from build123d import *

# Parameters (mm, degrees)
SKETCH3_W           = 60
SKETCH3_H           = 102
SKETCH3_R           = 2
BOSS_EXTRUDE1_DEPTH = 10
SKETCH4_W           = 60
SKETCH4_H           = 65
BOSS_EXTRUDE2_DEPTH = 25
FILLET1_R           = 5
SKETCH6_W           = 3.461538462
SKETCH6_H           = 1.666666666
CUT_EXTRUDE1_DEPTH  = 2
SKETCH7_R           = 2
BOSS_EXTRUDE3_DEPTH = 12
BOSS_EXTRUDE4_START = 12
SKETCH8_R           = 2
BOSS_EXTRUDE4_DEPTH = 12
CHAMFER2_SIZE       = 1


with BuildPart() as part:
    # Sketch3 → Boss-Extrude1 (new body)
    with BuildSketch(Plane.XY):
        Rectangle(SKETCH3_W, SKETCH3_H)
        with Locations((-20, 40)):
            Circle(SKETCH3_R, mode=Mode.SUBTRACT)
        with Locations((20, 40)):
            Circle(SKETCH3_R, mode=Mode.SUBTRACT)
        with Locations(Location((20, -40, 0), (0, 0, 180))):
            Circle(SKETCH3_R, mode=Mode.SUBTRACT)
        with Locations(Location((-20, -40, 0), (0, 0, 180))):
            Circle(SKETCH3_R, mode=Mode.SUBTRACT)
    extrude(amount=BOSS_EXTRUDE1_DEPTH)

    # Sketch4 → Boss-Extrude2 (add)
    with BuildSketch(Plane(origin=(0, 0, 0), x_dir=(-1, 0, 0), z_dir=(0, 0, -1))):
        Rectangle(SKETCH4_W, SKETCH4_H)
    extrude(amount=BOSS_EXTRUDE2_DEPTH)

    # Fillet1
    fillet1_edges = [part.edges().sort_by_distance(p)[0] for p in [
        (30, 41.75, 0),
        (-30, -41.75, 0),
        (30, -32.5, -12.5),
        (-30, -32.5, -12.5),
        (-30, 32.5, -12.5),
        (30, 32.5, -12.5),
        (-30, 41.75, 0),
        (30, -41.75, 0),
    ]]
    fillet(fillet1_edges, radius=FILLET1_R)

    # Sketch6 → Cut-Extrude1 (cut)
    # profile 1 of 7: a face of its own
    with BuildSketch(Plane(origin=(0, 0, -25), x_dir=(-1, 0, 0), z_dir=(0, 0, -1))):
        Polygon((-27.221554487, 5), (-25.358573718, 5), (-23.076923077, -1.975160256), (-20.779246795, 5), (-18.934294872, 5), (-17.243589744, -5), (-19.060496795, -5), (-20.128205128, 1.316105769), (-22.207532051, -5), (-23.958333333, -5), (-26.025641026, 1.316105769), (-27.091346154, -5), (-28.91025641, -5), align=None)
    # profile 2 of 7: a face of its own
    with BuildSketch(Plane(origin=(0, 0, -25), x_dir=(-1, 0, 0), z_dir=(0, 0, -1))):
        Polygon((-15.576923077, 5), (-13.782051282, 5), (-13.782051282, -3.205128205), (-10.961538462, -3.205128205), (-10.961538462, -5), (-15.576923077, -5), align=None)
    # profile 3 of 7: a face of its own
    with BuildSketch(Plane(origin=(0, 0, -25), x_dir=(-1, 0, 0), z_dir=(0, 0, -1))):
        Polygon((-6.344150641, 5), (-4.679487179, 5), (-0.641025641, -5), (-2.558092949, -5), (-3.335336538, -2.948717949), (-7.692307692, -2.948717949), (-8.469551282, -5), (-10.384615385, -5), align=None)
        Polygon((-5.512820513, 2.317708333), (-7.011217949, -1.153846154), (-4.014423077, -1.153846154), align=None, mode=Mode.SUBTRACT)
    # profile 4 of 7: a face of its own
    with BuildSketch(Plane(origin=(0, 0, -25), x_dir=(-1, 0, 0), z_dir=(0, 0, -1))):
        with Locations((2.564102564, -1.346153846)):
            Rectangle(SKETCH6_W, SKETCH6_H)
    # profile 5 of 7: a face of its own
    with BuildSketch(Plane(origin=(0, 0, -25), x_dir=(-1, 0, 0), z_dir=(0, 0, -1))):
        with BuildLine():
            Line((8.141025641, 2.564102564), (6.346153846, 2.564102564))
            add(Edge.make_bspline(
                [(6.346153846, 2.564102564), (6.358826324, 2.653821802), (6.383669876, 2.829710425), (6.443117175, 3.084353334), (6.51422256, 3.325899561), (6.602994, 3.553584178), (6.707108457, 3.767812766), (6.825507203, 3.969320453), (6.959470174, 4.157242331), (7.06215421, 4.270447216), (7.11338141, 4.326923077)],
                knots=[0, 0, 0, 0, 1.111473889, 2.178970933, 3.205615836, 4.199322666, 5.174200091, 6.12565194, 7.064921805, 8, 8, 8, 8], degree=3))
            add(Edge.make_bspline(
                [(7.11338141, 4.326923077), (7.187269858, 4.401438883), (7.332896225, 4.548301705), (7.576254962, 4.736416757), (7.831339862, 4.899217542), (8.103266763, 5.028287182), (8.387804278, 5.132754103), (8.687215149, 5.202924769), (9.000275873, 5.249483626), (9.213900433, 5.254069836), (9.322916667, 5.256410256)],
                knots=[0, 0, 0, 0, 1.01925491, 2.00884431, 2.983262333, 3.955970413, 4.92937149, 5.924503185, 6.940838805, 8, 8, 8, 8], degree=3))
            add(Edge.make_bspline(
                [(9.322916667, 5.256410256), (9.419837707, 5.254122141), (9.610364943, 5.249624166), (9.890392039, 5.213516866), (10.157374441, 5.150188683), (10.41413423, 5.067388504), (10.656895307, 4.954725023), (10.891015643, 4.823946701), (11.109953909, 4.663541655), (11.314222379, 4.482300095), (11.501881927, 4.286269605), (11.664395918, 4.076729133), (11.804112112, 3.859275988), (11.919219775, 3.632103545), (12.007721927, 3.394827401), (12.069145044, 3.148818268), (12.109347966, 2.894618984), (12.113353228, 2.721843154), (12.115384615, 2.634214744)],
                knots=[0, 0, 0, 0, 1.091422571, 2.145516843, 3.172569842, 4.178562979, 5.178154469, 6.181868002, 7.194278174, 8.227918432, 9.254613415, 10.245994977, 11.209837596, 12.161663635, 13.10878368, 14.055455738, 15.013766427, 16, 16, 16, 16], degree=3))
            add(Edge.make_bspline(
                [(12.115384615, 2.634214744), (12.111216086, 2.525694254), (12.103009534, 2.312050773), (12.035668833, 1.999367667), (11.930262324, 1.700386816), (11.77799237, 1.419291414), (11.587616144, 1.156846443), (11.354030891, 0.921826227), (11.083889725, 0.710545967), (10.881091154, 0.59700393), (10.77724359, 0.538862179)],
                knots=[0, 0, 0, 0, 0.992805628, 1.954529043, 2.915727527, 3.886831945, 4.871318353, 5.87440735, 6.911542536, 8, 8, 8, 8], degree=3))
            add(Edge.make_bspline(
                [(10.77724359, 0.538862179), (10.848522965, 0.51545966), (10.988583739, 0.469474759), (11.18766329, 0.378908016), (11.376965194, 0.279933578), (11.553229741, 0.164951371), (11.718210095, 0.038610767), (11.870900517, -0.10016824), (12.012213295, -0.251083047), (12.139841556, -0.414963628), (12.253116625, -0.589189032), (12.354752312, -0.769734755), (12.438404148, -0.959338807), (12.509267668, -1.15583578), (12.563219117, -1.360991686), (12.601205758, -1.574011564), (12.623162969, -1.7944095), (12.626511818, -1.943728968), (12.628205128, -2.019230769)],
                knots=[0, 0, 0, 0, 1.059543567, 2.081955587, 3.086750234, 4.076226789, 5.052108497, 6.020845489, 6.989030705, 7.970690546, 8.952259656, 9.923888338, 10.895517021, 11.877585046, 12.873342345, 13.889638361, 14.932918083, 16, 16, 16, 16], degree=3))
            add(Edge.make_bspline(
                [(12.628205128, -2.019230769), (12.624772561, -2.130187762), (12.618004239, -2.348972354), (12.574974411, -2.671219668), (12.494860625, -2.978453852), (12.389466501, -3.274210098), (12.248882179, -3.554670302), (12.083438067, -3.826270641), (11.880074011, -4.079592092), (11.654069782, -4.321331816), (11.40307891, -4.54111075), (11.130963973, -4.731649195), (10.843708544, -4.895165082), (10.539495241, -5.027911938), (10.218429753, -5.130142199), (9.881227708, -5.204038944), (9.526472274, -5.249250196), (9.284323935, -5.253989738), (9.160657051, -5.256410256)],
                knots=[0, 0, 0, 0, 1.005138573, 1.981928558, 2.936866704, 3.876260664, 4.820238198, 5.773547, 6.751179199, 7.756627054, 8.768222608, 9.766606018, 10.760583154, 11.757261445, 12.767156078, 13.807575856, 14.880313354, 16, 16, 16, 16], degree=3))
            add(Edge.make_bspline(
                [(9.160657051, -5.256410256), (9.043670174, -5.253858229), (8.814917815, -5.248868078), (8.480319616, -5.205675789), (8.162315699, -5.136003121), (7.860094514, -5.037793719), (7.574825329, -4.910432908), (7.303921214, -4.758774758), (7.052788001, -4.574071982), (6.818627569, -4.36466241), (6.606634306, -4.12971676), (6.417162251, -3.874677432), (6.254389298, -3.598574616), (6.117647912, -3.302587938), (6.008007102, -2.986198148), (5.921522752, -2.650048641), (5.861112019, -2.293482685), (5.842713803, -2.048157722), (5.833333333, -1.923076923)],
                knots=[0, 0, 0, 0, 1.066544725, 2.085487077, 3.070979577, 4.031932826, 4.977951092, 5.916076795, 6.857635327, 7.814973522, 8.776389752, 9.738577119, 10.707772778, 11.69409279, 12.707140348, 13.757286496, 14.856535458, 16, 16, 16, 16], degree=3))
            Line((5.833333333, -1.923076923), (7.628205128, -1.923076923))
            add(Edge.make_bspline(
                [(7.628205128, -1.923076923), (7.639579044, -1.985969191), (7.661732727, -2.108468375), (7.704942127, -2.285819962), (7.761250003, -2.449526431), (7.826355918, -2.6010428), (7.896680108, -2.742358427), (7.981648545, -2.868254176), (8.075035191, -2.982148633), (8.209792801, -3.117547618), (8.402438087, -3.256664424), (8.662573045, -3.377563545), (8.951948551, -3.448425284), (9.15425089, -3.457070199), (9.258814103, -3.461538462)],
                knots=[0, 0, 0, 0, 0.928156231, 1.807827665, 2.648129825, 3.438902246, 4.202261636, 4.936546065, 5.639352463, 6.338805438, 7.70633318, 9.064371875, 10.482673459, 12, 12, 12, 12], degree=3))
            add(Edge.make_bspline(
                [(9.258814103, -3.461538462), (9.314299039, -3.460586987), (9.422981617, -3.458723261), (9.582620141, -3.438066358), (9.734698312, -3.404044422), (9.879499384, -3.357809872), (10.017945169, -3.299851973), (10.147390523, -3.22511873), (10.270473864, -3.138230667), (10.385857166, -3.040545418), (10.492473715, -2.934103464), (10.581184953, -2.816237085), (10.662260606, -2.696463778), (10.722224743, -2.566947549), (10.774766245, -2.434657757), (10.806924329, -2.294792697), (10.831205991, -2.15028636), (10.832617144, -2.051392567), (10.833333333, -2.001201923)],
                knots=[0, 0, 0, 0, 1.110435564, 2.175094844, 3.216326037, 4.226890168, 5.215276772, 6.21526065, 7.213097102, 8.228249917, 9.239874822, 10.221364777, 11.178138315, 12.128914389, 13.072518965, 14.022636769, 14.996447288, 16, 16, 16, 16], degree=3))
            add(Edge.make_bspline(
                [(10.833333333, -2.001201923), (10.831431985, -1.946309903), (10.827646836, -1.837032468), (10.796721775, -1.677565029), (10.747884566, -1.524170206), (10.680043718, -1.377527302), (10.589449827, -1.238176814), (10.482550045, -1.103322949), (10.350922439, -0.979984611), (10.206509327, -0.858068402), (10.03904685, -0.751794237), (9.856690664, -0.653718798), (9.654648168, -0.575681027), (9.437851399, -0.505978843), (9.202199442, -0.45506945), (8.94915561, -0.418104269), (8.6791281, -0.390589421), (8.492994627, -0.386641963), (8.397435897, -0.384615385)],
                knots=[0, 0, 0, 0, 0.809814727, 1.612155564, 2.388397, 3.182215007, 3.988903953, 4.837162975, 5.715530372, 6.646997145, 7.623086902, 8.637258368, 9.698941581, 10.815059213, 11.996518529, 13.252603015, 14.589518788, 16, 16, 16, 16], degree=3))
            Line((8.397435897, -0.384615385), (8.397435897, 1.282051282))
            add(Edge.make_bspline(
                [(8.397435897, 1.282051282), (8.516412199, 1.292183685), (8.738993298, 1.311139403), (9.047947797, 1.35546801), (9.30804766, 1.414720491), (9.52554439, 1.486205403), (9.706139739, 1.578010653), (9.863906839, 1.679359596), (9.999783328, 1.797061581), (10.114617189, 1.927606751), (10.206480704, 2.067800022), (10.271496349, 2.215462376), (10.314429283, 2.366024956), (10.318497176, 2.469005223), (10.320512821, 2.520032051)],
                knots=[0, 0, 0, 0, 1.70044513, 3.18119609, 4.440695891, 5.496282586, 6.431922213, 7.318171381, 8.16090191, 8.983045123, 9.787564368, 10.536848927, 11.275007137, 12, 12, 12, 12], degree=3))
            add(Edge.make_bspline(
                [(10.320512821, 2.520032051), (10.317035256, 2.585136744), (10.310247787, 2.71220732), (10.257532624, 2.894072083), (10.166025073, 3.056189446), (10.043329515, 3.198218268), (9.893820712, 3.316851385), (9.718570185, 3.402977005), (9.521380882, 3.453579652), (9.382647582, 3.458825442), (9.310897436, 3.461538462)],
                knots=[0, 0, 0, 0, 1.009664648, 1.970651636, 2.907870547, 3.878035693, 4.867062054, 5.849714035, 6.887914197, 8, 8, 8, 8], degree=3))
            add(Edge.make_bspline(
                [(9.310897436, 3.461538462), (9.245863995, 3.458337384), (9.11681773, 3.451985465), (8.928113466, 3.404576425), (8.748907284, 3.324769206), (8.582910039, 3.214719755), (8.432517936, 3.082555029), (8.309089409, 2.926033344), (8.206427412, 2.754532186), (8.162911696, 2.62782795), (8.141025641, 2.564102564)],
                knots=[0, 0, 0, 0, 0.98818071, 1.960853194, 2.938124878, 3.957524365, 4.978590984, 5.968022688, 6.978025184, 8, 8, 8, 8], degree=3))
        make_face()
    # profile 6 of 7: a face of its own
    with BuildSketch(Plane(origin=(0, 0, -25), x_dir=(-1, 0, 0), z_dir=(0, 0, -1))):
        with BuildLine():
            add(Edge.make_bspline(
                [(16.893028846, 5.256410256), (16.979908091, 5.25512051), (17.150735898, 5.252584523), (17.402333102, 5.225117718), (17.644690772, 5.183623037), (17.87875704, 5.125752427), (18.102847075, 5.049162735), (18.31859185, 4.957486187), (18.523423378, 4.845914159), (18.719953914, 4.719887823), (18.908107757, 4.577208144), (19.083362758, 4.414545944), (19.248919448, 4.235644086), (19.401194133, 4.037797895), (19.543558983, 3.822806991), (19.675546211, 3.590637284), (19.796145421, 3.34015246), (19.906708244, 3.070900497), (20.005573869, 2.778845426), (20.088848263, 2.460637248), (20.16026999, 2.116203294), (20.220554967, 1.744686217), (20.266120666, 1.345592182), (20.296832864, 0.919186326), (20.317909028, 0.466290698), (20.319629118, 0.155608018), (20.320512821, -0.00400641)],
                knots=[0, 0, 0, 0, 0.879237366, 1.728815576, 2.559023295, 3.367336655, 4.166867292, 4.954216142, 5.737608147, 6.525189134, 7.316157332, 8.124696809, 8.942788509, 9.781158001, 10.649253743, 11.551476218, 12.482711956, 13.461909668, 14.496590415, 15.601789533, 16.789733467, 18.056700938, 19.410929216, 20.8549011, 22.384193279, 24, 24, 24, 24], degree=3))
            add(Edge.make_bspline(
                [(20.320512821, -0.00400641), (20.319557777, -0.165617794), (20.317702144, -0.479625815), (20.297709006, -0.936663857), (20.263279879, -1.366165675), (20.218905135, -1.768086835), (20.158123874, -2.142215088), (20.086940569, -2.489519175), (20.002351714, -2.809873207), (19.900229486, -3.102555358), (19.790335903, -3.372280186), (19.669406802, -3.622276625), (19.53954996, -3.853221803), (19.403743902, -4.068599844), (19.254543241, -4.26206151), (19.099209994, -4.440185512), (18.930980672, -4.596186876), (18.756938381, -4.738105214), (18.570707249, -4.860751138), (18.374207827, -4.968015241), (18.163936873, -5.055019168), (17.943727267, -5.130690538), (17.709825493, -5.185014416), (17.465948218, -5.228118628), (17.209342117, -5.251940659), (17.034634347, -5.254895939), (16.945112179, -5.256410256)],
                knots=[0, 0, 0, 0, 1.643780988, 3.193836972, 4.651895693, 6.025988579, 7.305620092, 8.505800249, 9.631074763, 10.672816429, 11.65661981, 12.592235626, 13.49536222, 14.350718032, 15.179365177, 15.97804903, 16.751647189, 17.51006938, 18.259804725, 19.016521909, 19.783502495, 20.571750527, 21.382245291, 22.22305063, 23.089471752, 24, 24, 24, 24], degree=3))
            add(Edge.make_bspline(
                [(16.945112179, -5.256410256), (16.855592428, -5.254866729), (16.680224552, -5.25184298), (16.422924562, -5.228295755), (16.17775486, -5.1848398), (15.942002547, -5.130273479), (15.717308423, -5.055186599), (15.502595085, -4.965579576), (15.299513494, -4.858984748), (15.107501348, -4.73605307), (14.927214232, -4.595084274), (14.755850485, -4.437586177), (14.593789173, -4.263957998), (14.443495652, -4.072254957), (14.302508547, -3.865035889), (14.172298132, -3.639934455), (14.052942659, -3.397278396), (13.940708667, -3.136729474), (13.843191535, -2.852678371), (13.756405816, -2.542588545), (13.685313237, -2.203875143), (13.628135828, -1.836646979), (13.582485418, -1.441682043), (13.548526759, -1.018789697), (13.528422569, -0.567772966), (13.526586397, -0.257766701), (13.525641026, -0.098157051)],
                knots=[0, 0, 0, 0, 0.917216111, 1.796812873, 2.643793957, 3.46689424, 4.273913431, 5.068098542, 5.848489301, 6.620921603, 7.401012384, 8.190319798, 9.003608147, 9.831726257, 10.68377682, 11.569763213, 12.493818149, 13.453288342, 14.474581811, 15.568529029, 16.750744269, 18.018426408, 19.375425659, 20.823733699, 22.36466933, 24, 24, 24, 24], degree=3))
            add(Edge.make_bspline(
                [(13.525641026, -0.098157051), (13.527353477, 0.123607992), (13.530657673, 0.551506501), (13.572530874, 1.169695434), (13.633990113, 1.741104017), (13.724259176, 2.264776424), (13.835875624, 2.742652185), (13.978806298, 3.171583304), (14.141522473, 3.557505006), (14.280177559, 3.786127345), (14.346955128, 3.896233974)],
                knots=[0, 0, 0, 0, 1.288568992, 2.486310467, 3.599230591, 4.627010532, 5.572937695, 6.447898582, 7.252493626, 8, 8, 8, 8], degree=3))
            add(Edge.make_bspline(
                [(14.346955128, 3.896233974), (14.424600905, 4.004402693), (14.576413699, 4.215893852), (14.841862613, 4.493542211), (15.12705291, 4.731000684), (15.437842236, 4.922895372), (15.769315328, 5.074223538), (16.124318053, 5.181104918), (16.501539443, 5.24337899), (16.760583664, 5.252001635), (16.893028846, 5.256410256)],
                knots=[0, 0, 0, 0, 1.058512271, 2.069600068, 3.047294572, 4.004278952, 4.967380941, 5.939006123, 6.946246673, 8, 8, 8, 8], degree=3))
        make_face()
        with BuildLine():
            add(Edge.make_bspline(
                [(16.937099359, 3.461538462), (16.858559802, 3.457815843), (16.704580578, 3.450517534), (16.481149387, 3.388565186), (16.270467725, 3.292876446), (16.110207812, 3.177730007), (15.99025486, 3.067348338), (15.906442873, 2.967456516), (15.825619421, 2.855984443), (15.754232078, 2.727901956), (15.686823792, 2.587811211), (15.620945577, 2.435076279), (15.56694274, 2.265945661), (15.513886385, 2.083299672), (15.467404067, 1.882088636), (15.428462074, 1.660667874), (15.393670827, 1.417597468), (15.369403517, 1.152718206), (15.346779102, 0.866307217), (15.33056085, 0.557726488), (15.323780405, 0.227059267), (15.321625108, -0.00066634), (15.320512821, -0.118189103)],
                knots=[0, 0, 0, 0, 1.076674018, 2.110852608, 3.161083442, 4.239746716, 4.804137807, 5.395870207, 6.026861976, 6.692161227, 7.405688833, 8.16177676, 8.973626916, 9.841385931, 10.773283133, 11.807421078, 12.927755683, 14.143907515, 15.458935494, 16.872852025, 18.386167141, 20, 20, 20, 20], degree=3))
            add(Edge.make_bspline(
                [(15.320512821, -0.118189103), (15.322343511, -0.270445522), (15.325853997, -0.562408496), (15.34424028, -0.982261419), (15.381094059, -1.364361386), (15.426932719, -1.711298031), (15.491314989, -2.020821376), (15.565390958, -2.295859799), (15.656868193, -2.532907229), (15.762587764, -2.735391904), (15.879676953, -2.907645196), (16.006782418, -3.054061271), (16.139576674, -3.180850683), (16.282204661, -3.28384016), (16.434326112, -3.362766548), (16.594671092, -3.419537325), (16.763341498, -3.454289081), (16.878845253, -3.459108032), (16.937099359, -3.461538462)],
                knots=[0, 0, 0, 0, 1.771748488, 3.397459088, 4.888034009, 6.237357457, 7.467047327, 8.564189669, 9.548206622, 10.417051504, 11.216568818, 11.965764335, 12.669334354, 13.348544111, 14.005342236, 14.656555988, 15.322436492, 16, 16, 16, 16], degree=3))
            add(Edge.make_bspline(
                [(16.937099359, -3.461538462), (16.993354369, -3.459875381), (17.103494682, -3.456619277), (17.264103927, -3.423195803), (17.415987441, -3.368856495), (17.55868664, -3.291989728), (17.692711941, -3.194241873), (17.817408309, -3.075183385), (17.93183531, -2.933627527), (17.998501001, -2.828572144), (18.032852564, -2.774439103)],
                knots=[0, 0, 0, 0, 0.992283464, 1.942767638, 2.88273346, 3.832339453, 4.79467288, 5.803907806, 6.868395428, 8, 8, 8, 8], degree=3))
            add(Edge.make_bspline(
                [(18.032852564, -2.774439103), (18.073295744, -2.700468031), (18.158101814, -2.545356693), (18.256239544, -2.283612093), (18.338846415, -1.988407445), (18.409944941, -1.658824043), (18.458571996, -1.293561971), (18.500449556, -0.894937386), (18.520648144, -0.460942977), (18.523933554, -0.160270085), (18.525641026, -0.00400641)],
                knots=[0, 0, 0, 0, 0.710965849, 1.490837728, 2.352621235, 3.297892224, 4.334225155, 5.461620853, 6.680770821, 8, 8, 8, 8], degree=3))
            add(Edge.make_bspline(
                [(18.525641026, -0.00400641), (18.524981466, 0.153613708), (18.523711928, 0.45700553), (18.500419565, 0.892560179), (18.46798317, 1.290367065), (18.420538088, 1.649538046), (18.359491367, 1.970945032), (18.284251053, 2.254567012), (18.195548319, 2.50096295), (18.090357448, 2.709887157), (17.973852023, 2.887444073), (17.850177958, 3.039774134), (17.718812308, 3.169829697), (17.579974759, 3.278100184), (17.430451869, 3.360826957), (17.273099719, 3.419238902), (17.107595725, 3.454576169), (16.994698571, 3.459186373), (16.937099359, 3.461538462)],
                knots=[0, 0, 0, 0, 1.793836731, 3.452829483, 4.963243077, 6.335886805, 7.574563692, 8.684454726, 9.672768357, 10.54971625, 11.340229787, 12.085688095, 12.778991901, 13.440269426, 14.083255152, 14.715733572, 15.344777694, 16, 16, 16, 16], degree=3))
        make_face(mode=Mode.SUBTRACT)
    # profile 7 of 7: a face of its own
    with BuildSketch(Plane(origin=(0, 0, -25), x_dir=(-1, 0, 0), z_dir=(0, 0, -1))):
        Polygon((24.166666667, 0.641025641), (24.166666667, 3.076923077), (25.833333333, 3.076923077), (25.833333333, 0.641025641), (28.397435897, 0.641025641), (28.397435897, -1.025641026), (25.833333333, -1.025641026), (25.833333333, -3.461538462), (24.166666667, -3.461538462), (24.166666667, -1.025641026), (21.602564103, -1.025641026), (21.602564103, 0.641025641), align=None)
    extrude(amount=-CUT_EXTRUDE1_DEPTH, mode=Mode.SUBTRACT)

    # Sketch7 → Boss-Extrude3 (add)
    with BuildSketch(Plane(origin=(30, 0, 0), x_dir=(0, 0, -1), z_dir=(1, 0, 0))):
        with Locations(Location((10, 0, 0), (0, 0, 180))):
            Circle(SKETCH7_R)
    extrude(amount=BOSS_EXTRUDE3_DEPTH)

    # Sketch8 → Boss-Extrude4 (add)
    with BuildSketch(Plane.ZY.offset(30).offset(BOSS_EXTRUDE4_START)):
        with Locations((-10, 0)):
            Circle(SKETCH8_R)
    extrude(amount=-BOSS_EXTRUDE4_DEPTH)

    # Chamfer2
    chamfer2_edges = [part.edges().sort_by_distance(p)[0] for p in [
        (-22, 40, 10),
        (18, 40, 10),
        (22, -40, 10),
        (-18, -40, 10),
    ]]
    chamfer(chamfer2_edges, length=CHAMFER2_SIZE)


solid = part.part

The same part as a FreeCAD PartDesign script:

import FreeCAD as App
import Part
import Sketcher
from FreeCAD import Vector


def edges_at(feature, points):
    """Names of the edges that pass closest to the given points."""
    edges = feature.Shape.Edges
    near = lambda p: min(range(len(edges)), key=lambda i: edges[i].distToShape(Part.Vertex(*p))[0])
    return sorted({f"Edge{near(p) + 1}" for p in points})


def add_polygon(sketch, points):
    """Adds a closed chain of lines whose ends are joined by coincident constraints."""
    first, n = sketch.GeometryCount, len(points)
    for a, b in zip(points, points[1:] + points[:1]):
        sketch.addGeometry(Part.LineSegment(App.Vector(*a, 0), App.Vector(*b, 0)), False)
    for i in range(n):
        sketch.addConstraint(Sketcher.Constraint("Coincident", first + i, 2, first + (i + 1) % n, 1))

doc = App.newDocument("Part")
params = doc.addObject("Spreadsheet::Sheet", "Params")
for row, (alias, value) in enumerate([
    ("sketch1_diameter", "4 mm"),
    ("sketch1_width", "60 mm"),
    ("sketch1_height", "102 mm"),
    ("pad1_length", "10 mm"),
    ("sketch2_width", "60 mm"),
    ("sketch2_height", "65 mm"),
    ("pad2_length", "25 mm"),
    ("fillet_radius", "5 mm"),
    ("sketch3_height", "10 mm"),
    ("pocket1_length", "2 mm"),
    ("sketch4_diameter", "4 mm"),
    ("pad3_length", "12 mm"),
    ("sketch5_diameter", "4 mm"),
    ("pad4_length", "12 mm"),
    ("chamfer_size", "1 mm"),
], start=1):
    params.set(f"A{row}", alias)
    params.set(f"B{row}", "=" + value)
    params.setAlias(f"B{row}", alias)

body = doc.addObject("PartDesign::Body", "Body")

# Sketch on XY plane
sketch1 = body.newObject("Sketcher::SketchObject", "Sketch")
sketch1.AttachmentSupport = (doc.getObject("XY_Plane"), [""])
sketch1.MapMode = "FlatFace"
add_polygon(sketch1, [(-30, 51), (-30, -51), (30, -51), (30, 51)])  # lines 0-3
sketch1.addGeometry(Part.Circle(Vector(-20, -40, 0), Vector(0, 0, 1), 2), False)  # 4
sketch1.addGeometry(Part.Circle(Vector(20, -40, 0), Vector(0, 0, 1), 2), False)  # 5
sketch1.addGeometry(Part.Circle(Vector(-20, 40, 0), Vector(0, 0, 1), 2), False)  # 6
sketch1.addGeometry(Part.Circle(Vector(20, 40, 0), Vector(0, 0, 1), 2), False)  # 7
sketch1.addConstraint([
    Sketcher.Constraint("Vertical", 0),
    Sketcher.Constraint("Horizontal", 1),
    Sketcher.Constraint("Vertical", 2),
    Sketcher.Constraint("Horizontal", 3),
    Sketcher.Constraint("Equal", 4, 5),
    Sketcher.Constraint("Equal", 5, 6),
    Sketcher.Constraint("Equal", 6, 7),
    Sketcher.Constraint("Symmetric", 5, 3, 6, 3, -1, 1),
    Sketcher.Constraint("Symmetric", 4, 3, 7, 3, -1, 1),
    Sketcher.Constraint("Symmetric", 0, 2, 2, 2, -1, 1),
    Sketcher.Constraint("Symmetric", 4, 3, 5, 3, -2),
    Sketcher.Constraint("Diameter", 4, 4.0),
    Sketcher.Constraint("DistanceX", 1, 1, 1, 2, 60.0),
    Sketcher.Constraint("DistanceY", 0, 2, 0, 1, 102.0),
    Sketcher.Constraint("DistanceX", 4, 3, -1, 1, 20.0),
    Sketcher.Constraint("DistanceY", 4, 3, -1, 1, 40.0),
])
sketch1.setExpression("Constraints[15]", "Params.sketch1_diameter")
sketch1.setExpression("Constraints[16]", "Params.sketch1_width")
sketch1.setExpression("Constraints[17]", "Params.sketch1_height")
pad1 = body.newObject("PartDesign::Pad", "Pad")
pad1.Profile = sketch1
pad1.setExpression("Length", "Params.pad1_length")

# Sketch on XY plane
sketch2 = body.newObject("Sketcher::SketchObject", "Sketch001")
sketch2.AttachmentSupport = (doc.getObject("XY_Plane"), [""])
sketch2.MapMode = "FlatFace"
add_polygon(sketch2, [(30, 32.5), (30, -32.5), (-30, -32.5), (-30, 32.5)])  # lines 0-3
sketch2.addConstraint([
    Sketcher.Constraint("Vertical", 0),
    Sketcher.Constraint("Horizontal", 1),
    Sketcher.Constraint("Vertical", 2),
    Sketcher.Constraint("Horizontal", 3),
    Sketcher.Constraint("Symmetric", 0, 2, 2, 2, -1, 1),
    Sketcher.Constraint("DistanceX", 1, 2, 1, 1, 60.0),
    Sketcher.Constraint("DistanceY", 0, 2, 0, 1, 65.0),
])
sketch2.setExpression("Constraints[9]", "Params.sketch2_width")
sketch2.setExpression("Constraints[10]", "Params.sketch2_height")
pad2 = body.newObject("PartDesign::Pad", "Pad001")
pad2.Profile = sketch2
pad2.setExpression("Length", "Params.pad2_length")
pad2.Reversed = True
doc.recompute()

fillet = body.newObject("PartDesign::Fillet", "Fillet")
fillet.Base = (pad2, edges_at(pad2, [
    (30, 41.75, 0),
    (-30, -41.75, 0),
    (30, -32.5, -12.5),
    (-30, -32.5, -12.5),
    (-30, 32.5, -12.5),
    (30, 32.5, -12.5),
    (-30, 41.75, 0),
    (30, -41.75, 0),
]))
fillet.setExpression("Radius", "Params.fillet_radius")

# Sketch on XY plane
sketch3 = body.newObject("Sketcher::SketchObject", "Sketch002")
sketch3.AttachmentSupport = (doc.getObject("XY_Plane"), [""])
sketch3.MapMode = "FlatFace"
sketch3.AttachmentOffset = App.Placement(Vector(0, 0, -25), App.Rotation())
add_polygon(sketch3, [(25.358574, 5), (27.221554, 5), (28.910256, -5), (27.091346, -5), (26.025641, 1.316106), (23.958333, -5), (22.207532, -5), (20.128205, 1.316106), (19.060497, -5), (17.24359, -5), (18.934295, 5), (20.779247, 5), (23.076923, -1.97516)])  # lines 0-12
add_polygon(sketch3, [(13.782051, 5), (15.576923, 5), (15.576923, -5), (10.961538, -5), (10.961538, -3.205128), (13.782051, -3.205128)])  # lines 13-18
add_polygon(sketch3, [(4.679487, 5), (6.344151, 5), (10.384615, -5), (8.469551, -5), (7.692308, -2.948718), (3.335337, -2.948718), (2.558093, -5), (0.641026, -5)])  # lines 19-26
add_polygon(sketch3, [(5.512821, 2.317708), (4.014423, -1.153846), (7.011218, -1.153846)])  # lines 27-29
add_polygon(sketch3, [(-0.833333, -0.512821), (-0.833333, -2.179487), (-4.294872, -2.179487), (-4.294872, -0.512821)])  # lines 30-33
sketch3.addGeometry(Part.LineSegment(Vector(-6.346154, 2.564103, 0), Vector(-8.141026, 2.564103, 0)), False)  # 34
sketch3.addGeometry(Part.BSplineCurve([Vector(-9.310897, 3.461538, 0), Vector(-9.245864, 3.458337, 0), Vector(-9.116818, 3.451985, 0), Vector(-8.928113, 3.404576, 0), Vector(-8.748907, 3.324769, 0), Vector(-8.58291, 3.21472, 0), Vector(-8.432518, 3.082555, 0), Vector(-8.309089, 2.926033, 0), Vector(-8.206427, 2.754532, 0), Vector(-8.162912, 2.627828, 0), Vector(-8.141026, 2.564103, 0)], [4, 1, 1, 1, 1, 1, 1, 1, 4], [0, 0.98818071, 1.960853194, 2.938124878, 3.957524365, 4.978590984, 5.968022688, 6.978025184, 8], False, 3, [1, 1, 1, 1, 1, 1, 1, 1, 1, 1, 1], False), False)  # 35
sketch3.addGeometry(Part.BSplineCurve([Vector(-10.320513, 2.520032, 0), Vector(-10.317035, 2.585137, 0), Vector(-10.310248, 2.712207, 0), Vector(-10.257533, 2.894072, 0), Vector(-10.166025, 3.056189, 0), Vector(-10.04333, 3.198218, 0), Vector(-9.893821, 3.316851, 0), Vector(-9.71857, 3.402977, 0), Vector(-9.521381, 3.45358, 0), Vector(-9.382648, 3.458825, 0), Vector(-9.310897, 3.461538, 0)], [4, 1, 1, 1, 1, 1, 1, 1, 4], [0, 1.009664648, 1.970651636, 2.907870547, 3.878035693, 4.867062054, 5.849714035, 6.887914197, 8], False, 3, [1, 1, 1, 1, 1, 1, 1, 1, 1, 1, 1], False), False)  # 36
sketch3.addGeometry(Part.BSplineCurve([Vector(-8.397436, 1.282051, 0), Vector(-8.516412, 1.292184, 0), Vector(-8.738993, 1.311139, 0), Vector(-9.047948, 1.355468, 0), Vector(-9.308048, 1.41472, 0), Vector(-9.525544, 1.486205, 0), Vector(-9.70614, 1.578011, 0), Vector(-9.863907, 1.67936, 0), Vector(-9.999783, 1.797062, 0), Vector(-10.114617, 1.927607, 0), Vector(-10.206481, 2.0678, 0), Vector(-10.271496, 2.215462, 0), Vector(-10.314429, 2.366025, 0), Vector(-10.318497, 2.469005, 0), Vector(-10.320513, 2.520032, 0)], [4, 1, 1, 1, 1, 1, 1, 1, 1, 1, 1, 1, 4], [0, 1.70044513, 3.18119609, 4.440695891, 5.496282586, 6.431922213, 7.318171381, 8.16090191, 8.983045123, 9.787564368, 10.536848927, 11.275007137, 12], False, 3, [1, 1, 1, 1, 1, 1, 1, 1, 1, 1, 1, 1, 1, 1, 1], False), False)  # 37
sketch3.addGeometry(Part.LineSegment(Vector(-8.397436, 1.282051, 0), Vector(-8.397436, -0.384615, 0)), False)  # 38
sketch3.addGeometry(Part.BSplineCurve([Vector(-10.833333, -2.001202, 0), Vector(-10.831432, -1.94631, 0), Vector(-10.827647, -1.837032, 0), Vector(-10.796722, -1.677565, 0), Vector(-10.747885, -1.52417, 0), Vector(-10.680044, -1.377527, 0), Vector(-10.58945, -1.238177, 0), Vector(-10.48255, -1.103323, 0), Vector(-10.350922, -0.979985, 0), Vector(-10.206509, -0.858068, 0), Vector(-10.039047, -0.751794, 0), Vector(-9.856691, -0.653719, 0), Vector(-9.654648, -0.575681, 0), Vector(-9.437851, -0.505979, 0), Vector(-9.202199, -0.455069, 0), Vector(-8.949156, -0.418104, 0), Vector(-8.679128, -0.390589, 0), Vector(-8.492995, -0.386642, 0), Vector(-8.397436, -0.384615, 0)], [4, 1, 1, 1, 1, 1, 1, 1, 1, 1, 1, 1, 1, 1, 1, 1, 4], [0, 0.809814727, 1.612155564, 2.388397, 3.182215007, 3.988903953, 4.837162975, 5.715530372, 6.646997145, 7.623086902, 8.637258368, 9.698941581, 10.815059213, 11.996518529, 13.252603015, 14.589518788, 16], False, 3, [1, 1, 1, 1, 1, 1, 1, 1, 1, 1, 1, 1, 1, 1, 1, 1, 1, 1, 1], False), False)  # 39
sketch3.addGeometry(Part.BSplineCurve([Vector(-9.258814, -3.461538, 0), Vector(-9.314299, -3.460587, 0), Vector(-9.422982, -3.458723, 0), Vector(-9.58262, -3.438066, 0), Vector(-9.734698, -3.404044, 0), Vector(-9.879499, -3.35781, 0), Vector(-10.017945, -3.299852, 0), Vector(-10.147391, -3.225119, 0), Vector(-10.270474, -3.138231, 0), Vector(-10.385857, -3.040545, 0), Vector(-10.492474, -2.934103, 0), Vector(-10.581185, -2.816237, 0), Vector(-10.662261, -2.696464, 0), Vector(-10.722225, -2.566948, 0), Vector(-10.774766, -2.434658, 0), Vector(-10.806924, -2.294793, 0), Vector(-10.831206, -2.150286, 0), Vector(-10.832617, -2.051393, 0), Vector(-10.833333, -2.001202, 0)], [4, 1, 1, 1, 1, 1, 1, 1, 1, 1, 1, 1, 1, 1, 1, 1, 4], [0, 1.110435564, 2.175094844, 3.216326037, 4.226890168, 5.215276772, 6.21526065, 7.213097102, 8.228249917, 9.239874822, 10.221364777, 11.178138315, 12.128914389, 13.072518965, 14.022636769, 14.996447288, 16], False, 3, [1, 1, 1, 1, 1, 1, 1, 1, 1, 1, 1, 1, 1, 1, 1, 1, 1, 1, 1], False), False)  # 40
sketch3.addGeometry(Part.BSplineCurve([Vector(-7.628205, -1.923077, 0), Vector(-7.639579, -1.985969, 0), Vector(-7.661733, -2.108468, 0), Vector(-7.704942, -2.28582, 0), Vector(-7.76125, -2.449526, 0), Vector(-7.826356, -2.601043, 0), Vector(-7.89668, -2.742358, 0), Vector(-7.981649, -2.868254, 0), Vector(-8.075035, -2.982149, 0), Vector(-8.209793, -3.117548, 0), Vector(-8.402438, -3.256664, 0), Vector(-8.662573, -3.377564, 0), Vector(-8.951949, -3.448425, 0), Vector(-9.154251, -3.45707, 0), Vector(-9.258814, -3.461538, 0)], [4, 1, 1, 1, 1, 1, 1, 1, 1, 1, 1, 1, 4], [0, 0.928156231, 1.807827665, 2.648129825, 3.438902246, 4.202261636, 4.936546065, 5.639352463, 6.338805438, 7.70633318, 9.064371875, 10.482673459, 12], False, 3, [1, 1, 1, 1, 1, 1, 1, 1, 1, 1, 1, 1, 1, 1, 1], False), False)  # 41
sketch3.addGeometry(Part.LineSegment(Vector(-7.628205, -1.923077, 0), Vector(-5.833333, -1.923077, 0)), False)  # 42
sketch3.addGeometry(Part.BSplineCurve([Vector(-9.160657, -5.25641, 0), Vector(-9.04367, -5.253858, 0), Vector(-8.814918, -5.248868, 0), Vector(-8.48032, -5.205676, 0), Vector(-8.162316, -5.136003, 0), Vector(-7.860095, -5.037794, 0), Vector(-7.574825, -4.910433, 0), Vector(-7.303921, -4.758775, 0), Vector(-7.052788, -4.574072, 0), Vector(-6.818628, -4.364662, 0), Vector(-6.606634, -4.129717, 0), Vector(-6.417162, -3.874677, 0), Vector(-6.254389, -3.598575, 0), Vector(-6.117648, -3.302588, 0), Vector(-6.008007, -2.986198, 0), Vector(-5.921523, -2.650049, 0), Vector(-5.861112, -2.293483, 0), Vector(-5.842714, -2.048158, 0), Vector(-5.833333, -1.923077, 0)], [4, 1, 1, 1, 1, 1, 1, 1, 1, 1, 1, 1, 1, 1, 1, 1, 4], [0, 1.066544725, 2.085487077, 3.070979577, 4.031932826, 4.977951092, 5.916076795, 6.857635327, 7.814973522, 8.776389752, 9.738577119, 10.707772778, 11.69409279, 12.707140348, 13.757286496, 14.856535458, 16], False, 3, [1, 1, 1, 1, 1, 1, 1, 1, 1, 1, 1, 1, 1, 1, 1, 1, 1, 1, 1], False), False)  # 43
sketch3.addGeometry(Part.BSplineCurve([Vector(-12.628205, -2.019231, 0), Vector(-12.624773, -2.130188, 0), Vector(-12.618004, -2.348972, 0), Vector(-12.574974, -2.67122, 0), Vector(-12.494861, -2.978454, 0), Vector(-12.389467, -3.27421, 0), Vector(-12.248882, -3.55467, 0), Vector(-12.083438, -3.826271, 0), Vector(-11.880074, -4.079592, 0), Vector(-11.65407, -4.321332, 0), Vector(-11.403079, -4.541111, 0), Vector(-11.130964, -4.731649, 0), Vector(-10.843709, -4.895165, 0), Vector(-10.539495, -5.027912, 0), Vector(-10.21843, -5.130142, 0), Vector(-9.881228, -5.204039, 0), Vector(-9.526472, -5.24925, 0), Vector(-9.284324, -5.25399, 0), Vector(-9.160657, -5.25641, 0)], [4, 1, 1, 1, 1, 1, 1, 1, 1, 1, 1, 1, 1, 1, 1, 1, 4], [0, 1.005138573, 1.981928558, 2.936866704, 3.876260664, 4.820238198, 5.773547, 6.751179199, 7.756627054, 8.768222608, 9.766606018, 10.760583154, 11.757261445, 12.767156078, 13.807575856, 14.880313354, 16], False, 3, [1, 1, 1, 1, 1, 1, 1, 1, 1, 1, 1, 1, 1, 1, 1, 1, 1, 1, 1], False), False)  # 44
sketch3.addGeometry(Part.BSplineCurve([Vector(-10.777244, 0.538862, 0), Vector(-10.848523, 0.51546, 0), Vector(-10.988584, 0.469475, 0), Vector(-11.187663, 0.378908, 0), Vector(-11.376965, 0.279934, 0), Vector(-11.55323, 0.164951, 0), Vector(-11.71821, 0.038611, 0), Vector(-11.870901, -0.100168, 0), Vector(-12.012213, -0.251083, 0), Vector(-12.139842, -0.414964, 0), Vector(-12.253117, -0.589189, 0), Vector(-12.354752, -0.769735, 0), Vector(-12.438404, -0.959339, 0), Vector(-12.509268, -1.155836, 0), Vector(-12.563219, -1.360992, 0), Vector(-12.601206, -1.574012, 0), Vector(-12.623163, -1.794409, 0), Vector(-12.626512, -1.943729, 0), Vector(-12.628205, -2.019231, 0)], [4, 1, 1, 1, 1, 1, 1, 1, 1, 1, 1, 1, 1, 1, 1, 1, 4], [0, 1.059543567, 2.081955587, 3.086750234, 4.076226789, 5.052108497, 6.020845489, 6.989030705, 7.970690546, 8.952259656, 9.923888338, 10.895517021, 11.877585046, 12.873342345, 13.889638361, 14.932918083, 16], False, 3, [1, 1, 1, 1, 1, 1, 1, 1, 1, 1, 1, 1, 1, 1, 1, 1, 1, 1, 1], False), False)  # 45
sketch3.addGeometry(Part.BSplineCurve([Vector(-12.115385, 2.634215, 0), Vector(-12.111216, 2.525694, 0), Vector(-12.10301, 2.312051, 0), Vector(-12.035669, 1.999368, 0), Vector(-11.930262, 1.700387, 0), Vector(-11.777992, 1.419291, 0), Vector(-11.587616, 1.156846, 0), Vector(-11.354031, 0.921826, 0), Vector(-11.08389, 0.710546, 0), Vector(-10.881091, 0.597004, 0), Vector(-10.777244, 0.538862, 0)], [4, 1, 1, 1, 1, 1, 1, 1, 4], [0, 0.992805628, 1.954529043, 2.915727527, 3.886831945, 4.871318353, 5.87440735, 6.911542536, 8], False, 3, [1, 1, 1, 1, 1, 1, 1, 1, 1, 1, 1], False), False)  # 46
sketch3.addGeometry(Part.BSplineCurve([Vector(-9.322917, 5.25641, 0), Vector(-9.419838, 5.254122, 0), Vector(-9.610365, 5.249624, 0), Vector(-9.890392, 5.213517, 0), Vector(-10.157374, 5.150189, 0), Vector(-10.414134, 5.067389, 0), Vector(-10.656895, 4.954725, 0), Vector(-10.891016, 4.823947, 0), Vector(-11.109954, 4.663542, 0), Vector(-11.314222, 4.4823, 0), Vector(-11.501882, 4.28627, 0), Vector(-11.664396, 4.076729, 0), Vector(-11.804112, 3.859276, 0), Vector(-11.91922, 3.632104, 0), Vector(-12.007722, 3.394827, 0), Vector(-12.069145, 3.148818, 0), Vector(-12.109348, 2.894619, 0), Vector(-12.113353, 2.721843, 0), Vector(-12.115385, 2.634215, 0)], [4, 1, 1, 1, 1, 1, 1, 1, 1, 1, 1, 1, 1, 1, 1, 1, 4], [0, 1.091422571, 2.145516843, 3.172569842, 4.178562979, 5.178154469, 6.181868002, 7.194278174, 8.227918432, 9.254613415, 10.245994977, 11.209837596, 12.161663635, 13.10878368, 14.055455738, 15.013766427, 16], False, 3, [1, 1, 1, 1, 1, 1, 1, 1, 1, 1, 1, 1, 1, 1, 1, 1, 1, 1, 1], False), False)  # 47
sketch3.addGeometry(Part.BSplineCurve([Vector(-7.113381, 4.326923, 0), Vector(-7.18727, 4.401439, 0), Vector(-7.332896, 4.548302, 0), Vector(-7.576255, 4.736417, 0), Vector(-7.83134, 4.899218, 0), Vector(-8.103267, 5.028287, 0), Vector(-8.387804, 5.132754, 0), Vector(-8.687215, 5.202925, 0), Vector(-9.000276, 5.249484, 0), Vector(-9.2139, 5.25407, 0), Vector(-9.322917, 5.25641, 0)], [4, 1, 1, 1, 1, 1, 1, 1, 4], [0, 1.01925491, 2.00884431, 2.983262333, 3.955970413, 4.92937149, 5.924503185, 6.940838805, 8], False, 3, [1, 1, 1, 1, 1, 1, 1, 1, 1, 1, 1], False), False)  # 48
sketch3.addGeometry(Part.BSplineCurve([Vector(-6.346154, 2.564103, 0), Vector(-6.358826, 2.653822, 0), Vector(-6.38367, 2.82971, 0), Vector(-6.443117, 3.084353, 0), Vector(-6.514223, 3.3259, 0), Vector(-6.602994, 3.553584, 0), Vector(-6.707108, 3.767813, 0), Vector(-6.825507, 3.96932, 0), Vector(-6.95947, 4.157242, 0), Vector(-7.062154, 4.270447, 0), Vector(-7.113381, 4.326923, 0)], [4, 1, 1, 1, 1, 1, 1, 1, 4], [0, 1.111473889, 2.178970933, 3.205615836, 4.199322666, 5.174200091, 6.12565194, 7.064921805, 8], False, 3, [1, 1, 1, 1, 1, 1, 1, 1, 1, 1, 1], False), False)  # 49
sketch3.addGeometry(Part.BSplineCurve([Vector(-16.893029, 5.25641, 0), Vector(-16.979908, 5.255121, 0), Vector(-17.150736, 5.252585, 0), Vector(-17.402333, 5.225118, 0), Vector(-17.644691, 5.183623, 0), Vector(-17.878757, 5.125752, 0), Vector(-18.102847, 5.049163, 0), Vector(-18.318592, 4.957486, 0), Vector(-18.523423, 4.845914, 0), Vector(-18.719954, 4.719888, 0), Vector(-18.908108, 4.577208, 0), Vector(-19.083363, 4.414546, 0), Vector(-19.248919, 4.235644, 0), Vector(-19.401194, 4.037798, 0), Vector(-19.543559, 3.822807, 0), Vector(-19.675546, 3.590637, 0), Vector(-19.796145, 3.340152, 0), Vector(-19.906708, 3.0709, 0), Vector(-20.005574, 2.778845, 0), Vector(-20.088848, 2.460637, 0), Vector(-20.16027, 2.116203, 0), Vector(-20.220555, 1.744686, 0), Vector(-20.266121, 1.345592, 0), Vector(-20.296833, 0.919186, 0), Vector(-20.317909, 0.466291, 0), Vector(-20.319629, 0.155608, 0), Vector(-20.320513, -0.004006, 0)], [4, 1, 1, 1, 1, 1, 1, 1, 1, 1, 1, 1, 1, 1, 1, 1, 1, 1, 1, 1, 1, 1, 1, 1, 4], [0, 0.879237366, 1.728815576, 2.559023295, 3.367336655, 4.166867292, 4.954216142, 5.737608147, 6.525189134, 7.316157332, 8.124696809, 8.942788509, 9.781158001, 10.649253743, 11.551476218, 12.482711956, 13.461909668, 14.496590415, 15.601789533, 16.789733467, 18.056700938, 19.410929216, 20.8549011, 22.384193279, 24], False, 3, [1, 1, 1, 1, 1, 1, 1, 1, 1, 1, 1, 1, 1, 1, 1, 1, 1, 1, 1, 1, 1, 1, 1, 1, 1, 1, 1], False), False)  # 50
sketch3.addGeometry(Part.BSplineCurve([Vector(-14.346955, 3.896234, 0), Vector(-14.424601, 4.004403, 0), Vector(-14.576414, 4.215894, 0), Vector(-14.841863, 4.493542, 0), Vector(-15.127053, 4.731001, 0), Vector(-15.437842, 4.922895, 0), Vector(-15.769315, 5.074224, 0), Vector(-16.124318, 5.181105, 0), Vector(-16.501539, 5.243379, 0), Vector(-16.760584, 5.252002, 0), Vector(-16.893029, 5.25641, 0)], [4, 1, 1, 1, 1, 1, 1, 1, 4], [0, 1.058512271, 2.069600068, 3.047294572, 4.004278952, 4.967380941, 5.939006123, 6.946246673, 8], False, 3, [1, 1, 1, 1, 1, 1, 1, 1, 1, 1, 1], False), False)  # 51
sketch3.addGeometry(Part.BSplineCurve([Vector(-13.525641, -0.098157, 0), Vector(-13.527353, 0.123608, 0), Vector(-13.530658, 0.551507, 0), Vector(-13.572531, 1.169695, 0), Vector(-13.63399, 1.741104, 0), Vector(-13.724259, 2.264776, 0), Vector(-13.835876, 2.742652, 0), Vector(-13.978806, 3.171583, 0), Vector(-14.141522, 3.557505, 0), Vector(-14.280178, 3.786127, 0), Vector(-14.346955, 3.896234, 0)], [4, 1, 1, 1, 1, 1, 1, 1, 4], [0, 1.288568992, 2.486310467, 3.599230591, 4.627010532, 5.572937695, 6.447898582, 7.252493626, 8], False, 3, [1, 1, 1, 1, 1, 1, 1, 1, 1, 1, 1], False), False)  # 52
sketch3.addGeometry(Part.BSplineCurve([Vector(-16.945112, -5.25641, 0), Vector(-16.855592, -5.254867, 0), Vector(-16.680225, -5.251843, 0), Vector(-16.422925, -5.228296, 0), Vector(-16.177755, -5.18484, 0), Vector(-15.942003, -5.130273, 0), Vector(-15.717308, -5.055187, 0), Vector(-15.502595, -4.96558, 0), Vector(-15.299513, -4.858985, 0), Vector(-15.107501, -4.736053, 0), Vector(-14.927214, -4.595084, 0), Vector(-14.75585, -4.437586, 0), Vector(-14.593789, -4.263958, 0), Vector(-14.443496, -4.072255, 0), Vector(-14.302509, -3.865036, 0), Vector(-14.172298, -3.639934, 0), Vector(-14.052943, -3.397278, 0), Vector(-13.940709, -3.136729, 0), Vector(-13.843192, -2.852678, 0), Vector(-13.756406, -2.542589, 0), Vector(-13.685313, -2.203875, 0), Vector(-13.628136, -1.836647, 0), Vector(-13.582485, -1.441682, 0), Vector(-13.548527, -1.01879, 0), Vector(-13.528423, -0.567773, 0), Vector(-13.526586, -0.257767, 0), Vector(-13.525641, -0.098157, 0)], [4, 1, 1, 1, 1, 1, 1, 1, 1, 1, 1, 1, 1, 1, 1, 1, 1, 1, 1, 1, 1, 1, 1, 1, 4], [0, 0.917216111, 1.796812873, 2.643793957, 3.46689424, 4.273913431, 5.068098542, 5.848489301, 6.620921603, 7.401012384, 8.190319798, 9.003608147, 9.831726257, 10.68377682, 11.569763213, 12.493818149, 13.453288342, 14.474581811, 15.568529029, 16.750744269, 18.018426408, 19.375425659, 20.823733699, 22.36466933, 24], False, 3, [1, 1, 1, 1, 1, 1, 1, 1, 1, 1, 1, 1, 1, 1, 1, 1, 1, 1, 1, 1, 1, 1, 1, 1, 1, 1, 1], False), False)  # 53
sketch3.addGeometry(Part.BSplineCurve([Vector(-20.320513, -0.004006, 0), Vector(-20.319558, -0.165618, 0), Vector(-20.317702, -0.479626, 0), Vector(-20.297709, -0.936664, 0), Vector(-20.26328, -1.366166, 0), Vector(-20.218905, -1.768087, 0), Vector(-20.158124, -2.142215, 0), Vector(-20.086941, -2.489519, 0), Vector(-20.002352, -2.809873, 0), Vector(-19.900229, -3.102555, 0), Vector(-19.790336, -3.37228, 0), Vector(-19.669407, -3.622277, 0), Vector(-19.53955, -3.853222, 0), Vector(-19.403744, -4.0686, 0), Vector(-19.254543, -4.262062, 0), Vector(-19.09921, -4.440186, 0), Vector(-18.930981, -4.596187, 0), Vector(-18.756938, -4.738105, 0), Vector(-18.570707, -4.860751, 0), Vector(-18.374208, -4.968015, 0), Vector(-18.163937, -5.055019, 0), Vector(-17.943727, -5.130691, 0), Vector(-17.709825, -5.185014, 0), Vector(-17.465948, -5.228119, 0), Vector(-17.209342, -5.251941, 0), Vector(-17.034634, -5.254896, 0), Vector(-16.945112, -5.25641, 0)], [4, 1, 1, 1, 1, 1, 1, 1, 1, 1, 1, 1, 1, 1, 1, 1, 1, 1, 1, 1, 1, 1, 1, 1, 4], [0, 1.643780988, 3.193836972, 4.651895693, 6.025988579, 7.305620092, 8.505800249, 9.631074763, 10.672816429, 11.65661981, 12.592235626, 13.49536222, 14.350718032, 15.179365177, 15.97804903, 16.751647189, 17.51006938, 18.259804725, 19.016521909, 19.783502495, 20.571750527, 21.382245291, 22.22305063, 23.089471752, 24], False, 3, [1, 1, 1, 1, 1, 1, 1, 1, 1, 1, 1, 1, 1, 1, 1, 1, 1, 1, 1, 1, 1, 1, 1, 1, 1, 1, 1], False), False)  # 54
sketch3.addGeometry(Part.BSplineCurve([Vector(-18.525641, -0.004006, 0), Vector(-18.524981, 0.153614, 0), Vector(-18.523712, 0.457006, 0), Vector(-18.50042, 0.89256, 0), Vector(-18.467983, 1.290367, 0), Vector(-18.420538, 1.649538, 0), Vector(-18.359491, 1.970945, 0), Vector(-18.284251, 2.254567, 0), Vector(-18.195548, 2.500963, 0), Vector(-18.090357, 2.709887, 0), Vector(-17.973852, 2.887444, 0), Vector(-17.850178, 3.039774, 0), Vector(-17.718812, 3.16983, 0), Vector(-17.579975, 3.2781, 0), Vector(-17.430452, 3.360827, 0), Vector(-17.2731, 3.419239, 0), Vector(-17.107596, 3.454576, 0), Vector(-16.994699, 3.459186, 0), Vector(-16.937099, 3.461538, 0)], [4, 1, 1, 1, 1, 1, 1, 1, 1, 1, 1, 1, 1, 1, 1, 1, 4], [0, 1.793836731, 3.452829483, 4.963243077, 6.335886805, 7.574563692, 8.684454726, 9.672768357, 10.54971625, 11.340229787, 12.085688095, 12.778991901, 13.440269426, 14.083255152, 14.715733572, 15.344777694, 16], False, 3, [1, 1, 1, 1, 1, 1, 1, 1, 1, 1, 1, 1, 1, 1, 1, 1, 1, 1, 1], False), False)  # 55
sketch3.addGeometry(Part.BSplineCurve([Vector(-18.032853, -2.774439, 0), Vector(-18.073296, -2.700468, 0), Vector(-18.158102, -2.545357, 0), Vector(-18.25624, -2.283612, 0), Vector(-18.338846, -1.988407, 0), Vector(-18.409945, -1.658824, 0), Vector(-18.458572, -1.293562, 0), Vector(-18.50045, -0.894937, 0), Vector(-18.520648, -0.460943, 0), Vector(-18.523934, -0.16027, 0), Vector(-18.525641, -0.004006, 0)], [4, 1, 1, 1, 1, 1, 1, 1, 4], [0, 0.710965849, 1.490837728, 2.352621235, 3.297892224, 4.334225155, 5.461620853, 6.680770821, 8], False, 3, [1, 1, 1, 1, 1, 1, 1, 1, 1, 1, 1], False), False)  # 56
sketch3.addGeometry(Part.BSplineCurve([Vector(-16.937099, -3.461538, 0), Vector(-16.993354, -3.459875, 0), Vector(-17.103495, -3.456619, 0), Vector(-17.264104, -3.423196, 0), Vector(-17.415987, -3.368856, 0), Vector(-17.558687, -3.29199, 0), Vector(-17.692712, -3.194242, 0), Vector(-17.817408, -3.075183, 0), Vector(-17.931835, -2.933628, 0), Vector(-17.998501, -2.828572, 0), Vector(-18.032853, -2.774439, 0)], [4, 1, 1, 1, 1, 1, 1, 1, 4], [0, 0.992283464, 1.942767638, 2.88273346, 3.832339453, 4.79467288, 5.803907806, 6.868395428, 8], False, 3, [1, 1, 1, 1, 1, 1, 1, 1, 1, 1, 1], False), False)  # 57
sketch3.addGeometry(Part.BSplineCurve([Vector(-15.320513, -0.118189, 0), Vector(-15.322344, -0.270446, 0), Vector(-15.325854, -0.562408, 0), Vector(-15.34424, -0.982261, 0), Vector(-15.381094, -1.364361, 0), Vector(-15.426933, -1.711298, 0), Vector(-15.491315, -2.020821, 0), Vector(-15.565391, -2.29586, 0), Vector(-15.656868, -2.532907, 0), Vector(-15.762588, -2.735392, 0), Vector(-15.879677, -2.907645, 0), Vector(-16.006782, -3.054061, 0), Vector(-16.139577, -3.180851, 0), Vector(-16.282205, -3.28384, 0), Vector(-16.434326, -3.362767, 0), Vector(-16.594671, -3.419537, 0), Vector(-16.763341, -3.454289, 0), Vector(-16.878845, -3.459108, 0), Vector(-16.937099, -3.461538, 0)], [4, 1, 1, 1, 1, 1, 1, 1, 1, 1, 1, 1, 1, 1, 1, 1, 4], [0, 1.771748488, 3.397459088, 4.888034009, 6.237357457, 7.467047327, 8.564189669, 9.548206622, 10.417051504, 11.216568818, 11.965764335, 12.669334354, 13.348544111, 14.005342236, 14.656555988, 15.322436492, 16], False, 3, [1, 1, 1, 1, 1, 1, 1, 1, 1, 1, 1, 1, 1, 1, 1, 1, 1, 1, 1], False), False)  # 58
sketch3.addGeometry(Part.BSplineCurve([Vector(-16.937099, 3.461538, 0), Vector(-16.85856, 3.457816, 0), Vector(-16.704581, 3.450518, 0), Vector(-16.481149, 3.388565, 0), Vector(-16.270468, 3.292876, 0), Vector(-16.110208, 3.17773, 0), Vector(-15.990255, 3.067348, 0), Vector(-15.906443, 2.967457, 0), Vector(-15.825619, 2.855984, 0), Vector(-15.754232, 2.727902, 0), Vector(-15.686824, 2.587811, 0), Vector(-15.620946, 2.435076, 0), Vector(-15.566943, 2.265946, 0), Vector(-15.513886, 2.0833, 0), Vector(-15.467404, 1.882089, 0), Vector(-15.428462, 1.660668, 0), Vector(-15.393671, 1.417597, 0), Vector(-15.369404, 1.152718, 0), Vector(-15.346779, 0.866307, 0), Vector(-15.330561, 0.557726, 0), Vector(-15.32378, 0.227059, 0), Vector(-15.321625, -0.000666, 0), Vector(-15.320513, -0.118189, 0)], [4, 1, 1, 1, 1, 1, 1, 1, 1, 1, 1, 1, 1, 1, 1, 1, 1, 1, 1, 1, 4], [0, 1.076674018, 2.110852608, 3.161083442, 4.239746716, 4.804137807, 5.395870207, 6.026861976, 6.692161227, 7.405688833, 8.16177676, 8.973626916, 9.841385931, 10.773283133, 11.807421078, 12.927755683, 14.143907515, 15.458935494, 16.872852025, 18.386167141, 20], False, 3, [1, 1, 1, 1, 1, 1, 1, 1, 1, 1, 1, 1, 1, 1, 1, 1, 1, 1, 1, 1, 1, 1, 1], False), False)  # 59
add_polygon(sketch3, [(-24.166667, 3.076923), (-24.166667, 0.641026), (-21.602564, 0.641026), (-21.602564, -1.025641), (-24.166667, -1.025641), (-24.166667, -3.461538), (-25.833333, -3.461538), (-25.833333, -1.025641), (-28.397436, -1.025641), (-28.397436, 0.641026), (-25.833333, 0.641026), (-25.833333, 3.076923)])  # lines 60-71
sketch3.addConstraint([
    Sketcher.Constraint("Block", 35),
    Sketcher.Constraint("Block", 36),
    Sketcher.Constraint("Block", 37),
    Sketcher.Constraint("Block", 39),
    Sketcher.Constraint("Block", 40),
    Sketcher.Constraint("Block", 41),
    Sketcher.Constraint("Block", 43),
    Sketcher.Constraint("Block", 44),
    Sketcher.Constraint("Block", 45),
    Sketcher.Constraint("Block", 46),
    Sketcher.Constraint("Block", 47),
    Sketcher.Constraint("Block", 48),
    Sketcher.Constraint("Block", 49),
    Sketcher.Constraint("Block", 50),
    Sketcher.Constraint("Block", 51),
    Sketcher.Constraint("Block", 52),
    Sketcher.Constraint("Block", 53),
    Sketcher.Constraint("Block", 54),
    Sketcher.Constraint("Block", 55),
    Sketcher.Constraint("Block", 56),
    Sketcher.Constraint("Block", 57),
    Sketcher.Constraint("Block", 58),
    Sketcher.Constraint("Block", 59),
    Sketcher.Constraint("Coincident", 34, 2, 35, 2),
    Sketcher.Constraint("Coincident", 37, 1, 38, 1),
    Sketcher.Constraint("Coincident", 38, 2, 39, 2),
    Sketcher.Constraint("Coincident", 41, 1, 42, 1),
    Sketcher.Constraint("Coincident", 42, 2, 43, 2),
    Sketcher.Constraint("Coincident", 49, 1, 34, 1),
    Sketcher.Constraint("Horizontal", 0),
    Sketcher.Constraint("Horizontal", 2),
    Sketcher.Constraint("Horizontal", 5),
    Sketcher.Constraint("Horizontal", 8),
    Sketcher.Constraint("Horizontal", 10),
    Sketcher.Constraint("Horizontal", 13),
    Sketcher.Constraint("Vertical", 14),
    Sketcher.Constraint("Horizontal", 15),
    Sketcher.Constraint("Vertical", 16),
    Sketcher.Constraint("Horizontal", 17),
    Sketcher.Constraint("Vertical", 18),
    Sketcher.Constraint("Horizontal", 19),
    Sketcher.Constraint("Horizontal", 21),
    Sketcher.Constraint("Horizontal", 23),
    Sketcher.Constraint("Horizontal", 25),
    Sketcher.Constraint("Horizontal", 28),
    Sketcher.Constraint("Vertical", 30),
    Sketcher.Constraint("Horizontal", 31),
    Sketcher.Constraint("Vertical", 32),
    Sketcher.Constraint("Horizontal", 33),
    Sketcher.Constraint("Vertical", 60),
    Sketcher.Constraint("Horizontal", 61),
    Sketcher.Constraint("Vertical", 62),
    Sketcher.Constraint("Horizontal", 63),
    Sketcher.Constraint("Vertical", 64),
    Sketcher.Constraint("Horizontal", 65),
    Sketcher.Constraint("Vertical", 66),
    Sketcher.Constraint("Horizontal", 67),
    Sketcher.Constraint("Vertical", 68),
    Sketcher.Constraint("Horizontal", 69),
    Sketcher.Constraint("Vertical", 70),
    Sketcher.Constraint("Horizontal", 71),
    Sketcher.Constraint("DistanceY", 14, 2, 14, 1, 10.0),
    Sketcher.Constraint("DistanceY", -1, 1, 0, 2, 5.0),
    Sketcher.Constraint("DistanceY", 1, 2, -1, 1, 5.0),
    Sketcher.Constraint("DistanceY", 4, 2, -1, 1, 5.0),
    Sketcher.Constraint("DistanceY", 7, 2, -1, 1, 5.0),
    Sketcher.Constraint("DistanceY", -1, 1, 9, 2, 5.0),
    Sketcher.Constraint("DistanceY", -1, 1, 13, 2, 5.0),
    Sketcher.Constraint("DistanceY", -1, 1, 19, 2, 5.0),
    Sketcher.Constraint("DistanceY", 20, 2, -1, 1, 5.0),
    Sketcher.Constraint("DistanceY", 24, 2, -1, 1, 5.0),
    Sketcher.Constraint("DistanceX", 42, 2, 30, 2, 5.0),
    Sketcher.Constraint("DistanceX", 14, 2, 11, 2, 7.5),
    Sketcher.Constraint("DistanceX", 5, 2, 5, 1, 1.750801),
    Sketcher.Constraint("DistanceX", 0, 1, 0, 2, 1.862981),
    Sketcher.Constraint("DistanceX", 2, 2, 2, 1, 1.81891),
    Sketcher.Constraint("DistanceX", 10, 1, 10, 2, 1.844952),
    Sketcher.Constraint("DistanceX", 13, 1, 13, 2, 1.794872),
    Sketcher.Constraint("DistanceX", 23, 2, 23, 1, 4.356971),
    Sketcher.Constraint("DistanceX", 31, 2, 31, 1, 3.461538),
    Sketcher.Constraint("DistanceY", 16, 1, 16, 2, 1.794872),
    Sketcher.Constraint("DistanceX", 0, 2, 1, 2, 1.688702),
    Sketcher.Constraint("DistanceX", 9, 2, 7, 2, 0.126202),
    Sketcher.Constraint("DistanceX", 19, 2, 18, 2, 7.437901),
    Sketcher.Constraint("DistanceX", 21, 2, 17, 2, 5.3125),
    Sketcher.Constraint("DistanceX", 23, 2, 16, 2, 7.626202),
    Sketcher.Constraint("Distance", 6, 6.649571),
    Sketcher.Constraint("DistanceX", 8, 2, 8, 1, 1.816907),
    Sketcher.Constraint("DistanceX", 15, 2, 15, 1, 4.615385),
    Sketcher.Constraint("DistanceX", 19, 1, 19, 2, 1.664663),
    Sketcher.Constraint("DistanceX", 21, 2, 21, 1, 1.915064),
    Sketcher.Constraint("DistanceX", 25, 2, 25, 1, 1.917067),
    Sketcher.Constraint("DistanceX", 28, 1, 28, 2, 2.996795),
    Sketcher.Constraint("DistanceX", 61, 1, 61, 2, 2.564103),
    Sketcher.Constraint("DistanceX", 63, 2, 63, 1, 2.564103),
    Sketcher.Constraint("DistanceX", 65, 2, 65, 1, 1.666667),
    Sketcher.Constraint("DistanceX", 67, 2, 67, 1, 2.564103),
    Sketcher.Constraint("DistanceX", 69, 1, 69, 2, 2.564103),
    Sketcher.Constraint("DistanceY", 30, 2, 30, 1, 1.666667),
    Sketcher.Constraint("DistanceY", 60, 2, 60, 1, 2.435897),
    Sketcher.Constraint("DistanceY", 62, 2, 62, 1, 1.666667),
    Sketcher.Constraint("DistanceY", 64, 2, 64, 1, 2.435897),
    Sketcher.Constraint("DistanceY", 66, 1, 66, 2, 2.435897),
    Sketcher.Constraint("DistanceY", 68, 1, 68, 2, 1.666667),
    Sketcher.Constraint("DistanceX", -1, 1, 3, 2, 26.025641),
    Sketcher.Constraint("DistanceX", -1, 1, 8, 2, 17.24359),
    Sketcher.Constraint("DistanceY", 11, 2, -1, 1, 1.97516),
    Sketcher.Constraint("DistanceX", -1, 1, 15, 2, 10.961538),
    Sketcher.Constraint("DistanceX", -1, 1, 29, 2, 5.512821),
    Sketcher.Constraint("DistanceY", -1, 1, 29, 2, 2.317708),
    Sketcher.Constraint("DistanceY", 32, 2, -1, 1, 0.512821),
    Sketcher.Constraint("DistanceY", 62, 2, -1, 1, 1.025641),
    Sketcher.Constraint("DistanceX", 4, 2, 0, 2, 3.263221),
    Sketcher.Constraint("DistanceX", 5, 2, 3, 2, 3.818109),
    Sketcher.Constraint("DistanceX", 6, 2, 4, 2, 3.830128),
    Sketcher.Constraint("DistanceY", 16, 2, 22, 2, 0.25641),
    Sketcher.Constraint("DistanceX", 24, 2, 21, 2, 5.911458),
    Sketcher.Constraint("DistanceY", 23, 2, 27, 2, 1.794872),
    Sketcher.Constraint("DistanceX", 24, 2, 27, 2, 1.45633),
    Sketcher.Constraint("DistanceX", 60, 2, 38, 2, 15.769231),
    Sketcher.Constraint("Distance", 3, 6.405382),
])
sketch3.setExpression("Constraints[107]", "Params.sketch3_height")
pocket1 = body.newObject("PartDesign::Pocket", "Pocket")
pocket1.Profile = sketch3
pocket1.setExpression("Length", "Params.pocket1_length")
pocket1.Reversed = True

# Sketch on YZ plane
sketch4 = body.newObject("Sketcher::SketchObject", "Sketch003")
sketch4.AttachmentSupport = (doc.getObject("YZ_Plane"), [""])
sketch4.MapMode = "FlatFace"
sketch4.AttachmentOffset = App.Placement(Vector(0, 0, 30), App.Rotation())
sketch4.addGeometry(Part.Circle(Vector(0, -10, 0), Vector(0, 0, 1), 2), False)
sketch4.addConstraint([
    Sketcher.Constraint("PointOnObject", 0, 3, -2),
    Sketcher.Constraint("Diameter", 0, 4.0),
    Sketcher.Constraint("DistanceY", 0, 3, -1, 1, 10.0),
])
sketch4.setExpression("Constraints[1]", "Params.sketch4_diameter")
pad3 = body.newObject("PartDesign::Pad", "Pad002")
pad3.Profile = sketch4
pad3.setExpression("Length", "Params.pad3_length")

# Sketch on YZ plane
sketch5 = body.newObject("Sketcher::SketchObject", "Sketch004")
sketch5.AttachmentSupport = (doc.getObject("YZ_Plane"), [""])
sketch5.MapMode = "FlatFace"
sketch5.AttachmentOffset = App.Placement(Vector(0, 0, -42), App.Rotation())
sketch5.addGeometry(Part.Circle(Vector(0, -10, 0), Vector(0, 0, 1), 2), False)
sketch5.addConstraint([
    Sketcher.Constraint("PointOnObject", 0, 3, -2),
    Sketcher.Constraint("Diameter", 0, 4.0),
    Sketcher.Constraint("DistanceY", 0, 3, -1, 1, 10.0),
])
sketch5.setExpression("Constraints[1]", "Params.sketch5_diameter")
pad4 = body.newObject("PartDesign::Pad", "Pad003")
pad4.Profile = sketch5
pad4.setExpression("Length", "Params.pad4_length")
doc.recompute()

chamfer = body.newObject("PartDesign::Chamfer", "Chamfer")
chamfer.Base = (pad4, edges_at(pad4, [
    (-22, 40, 10),
    (18, 40, 10),
    (22, -40, 10),
    (-18, -40, 10),
]))
chamfer.setExpression("Size", "Params.chamfer_size")

doc.recompute()
